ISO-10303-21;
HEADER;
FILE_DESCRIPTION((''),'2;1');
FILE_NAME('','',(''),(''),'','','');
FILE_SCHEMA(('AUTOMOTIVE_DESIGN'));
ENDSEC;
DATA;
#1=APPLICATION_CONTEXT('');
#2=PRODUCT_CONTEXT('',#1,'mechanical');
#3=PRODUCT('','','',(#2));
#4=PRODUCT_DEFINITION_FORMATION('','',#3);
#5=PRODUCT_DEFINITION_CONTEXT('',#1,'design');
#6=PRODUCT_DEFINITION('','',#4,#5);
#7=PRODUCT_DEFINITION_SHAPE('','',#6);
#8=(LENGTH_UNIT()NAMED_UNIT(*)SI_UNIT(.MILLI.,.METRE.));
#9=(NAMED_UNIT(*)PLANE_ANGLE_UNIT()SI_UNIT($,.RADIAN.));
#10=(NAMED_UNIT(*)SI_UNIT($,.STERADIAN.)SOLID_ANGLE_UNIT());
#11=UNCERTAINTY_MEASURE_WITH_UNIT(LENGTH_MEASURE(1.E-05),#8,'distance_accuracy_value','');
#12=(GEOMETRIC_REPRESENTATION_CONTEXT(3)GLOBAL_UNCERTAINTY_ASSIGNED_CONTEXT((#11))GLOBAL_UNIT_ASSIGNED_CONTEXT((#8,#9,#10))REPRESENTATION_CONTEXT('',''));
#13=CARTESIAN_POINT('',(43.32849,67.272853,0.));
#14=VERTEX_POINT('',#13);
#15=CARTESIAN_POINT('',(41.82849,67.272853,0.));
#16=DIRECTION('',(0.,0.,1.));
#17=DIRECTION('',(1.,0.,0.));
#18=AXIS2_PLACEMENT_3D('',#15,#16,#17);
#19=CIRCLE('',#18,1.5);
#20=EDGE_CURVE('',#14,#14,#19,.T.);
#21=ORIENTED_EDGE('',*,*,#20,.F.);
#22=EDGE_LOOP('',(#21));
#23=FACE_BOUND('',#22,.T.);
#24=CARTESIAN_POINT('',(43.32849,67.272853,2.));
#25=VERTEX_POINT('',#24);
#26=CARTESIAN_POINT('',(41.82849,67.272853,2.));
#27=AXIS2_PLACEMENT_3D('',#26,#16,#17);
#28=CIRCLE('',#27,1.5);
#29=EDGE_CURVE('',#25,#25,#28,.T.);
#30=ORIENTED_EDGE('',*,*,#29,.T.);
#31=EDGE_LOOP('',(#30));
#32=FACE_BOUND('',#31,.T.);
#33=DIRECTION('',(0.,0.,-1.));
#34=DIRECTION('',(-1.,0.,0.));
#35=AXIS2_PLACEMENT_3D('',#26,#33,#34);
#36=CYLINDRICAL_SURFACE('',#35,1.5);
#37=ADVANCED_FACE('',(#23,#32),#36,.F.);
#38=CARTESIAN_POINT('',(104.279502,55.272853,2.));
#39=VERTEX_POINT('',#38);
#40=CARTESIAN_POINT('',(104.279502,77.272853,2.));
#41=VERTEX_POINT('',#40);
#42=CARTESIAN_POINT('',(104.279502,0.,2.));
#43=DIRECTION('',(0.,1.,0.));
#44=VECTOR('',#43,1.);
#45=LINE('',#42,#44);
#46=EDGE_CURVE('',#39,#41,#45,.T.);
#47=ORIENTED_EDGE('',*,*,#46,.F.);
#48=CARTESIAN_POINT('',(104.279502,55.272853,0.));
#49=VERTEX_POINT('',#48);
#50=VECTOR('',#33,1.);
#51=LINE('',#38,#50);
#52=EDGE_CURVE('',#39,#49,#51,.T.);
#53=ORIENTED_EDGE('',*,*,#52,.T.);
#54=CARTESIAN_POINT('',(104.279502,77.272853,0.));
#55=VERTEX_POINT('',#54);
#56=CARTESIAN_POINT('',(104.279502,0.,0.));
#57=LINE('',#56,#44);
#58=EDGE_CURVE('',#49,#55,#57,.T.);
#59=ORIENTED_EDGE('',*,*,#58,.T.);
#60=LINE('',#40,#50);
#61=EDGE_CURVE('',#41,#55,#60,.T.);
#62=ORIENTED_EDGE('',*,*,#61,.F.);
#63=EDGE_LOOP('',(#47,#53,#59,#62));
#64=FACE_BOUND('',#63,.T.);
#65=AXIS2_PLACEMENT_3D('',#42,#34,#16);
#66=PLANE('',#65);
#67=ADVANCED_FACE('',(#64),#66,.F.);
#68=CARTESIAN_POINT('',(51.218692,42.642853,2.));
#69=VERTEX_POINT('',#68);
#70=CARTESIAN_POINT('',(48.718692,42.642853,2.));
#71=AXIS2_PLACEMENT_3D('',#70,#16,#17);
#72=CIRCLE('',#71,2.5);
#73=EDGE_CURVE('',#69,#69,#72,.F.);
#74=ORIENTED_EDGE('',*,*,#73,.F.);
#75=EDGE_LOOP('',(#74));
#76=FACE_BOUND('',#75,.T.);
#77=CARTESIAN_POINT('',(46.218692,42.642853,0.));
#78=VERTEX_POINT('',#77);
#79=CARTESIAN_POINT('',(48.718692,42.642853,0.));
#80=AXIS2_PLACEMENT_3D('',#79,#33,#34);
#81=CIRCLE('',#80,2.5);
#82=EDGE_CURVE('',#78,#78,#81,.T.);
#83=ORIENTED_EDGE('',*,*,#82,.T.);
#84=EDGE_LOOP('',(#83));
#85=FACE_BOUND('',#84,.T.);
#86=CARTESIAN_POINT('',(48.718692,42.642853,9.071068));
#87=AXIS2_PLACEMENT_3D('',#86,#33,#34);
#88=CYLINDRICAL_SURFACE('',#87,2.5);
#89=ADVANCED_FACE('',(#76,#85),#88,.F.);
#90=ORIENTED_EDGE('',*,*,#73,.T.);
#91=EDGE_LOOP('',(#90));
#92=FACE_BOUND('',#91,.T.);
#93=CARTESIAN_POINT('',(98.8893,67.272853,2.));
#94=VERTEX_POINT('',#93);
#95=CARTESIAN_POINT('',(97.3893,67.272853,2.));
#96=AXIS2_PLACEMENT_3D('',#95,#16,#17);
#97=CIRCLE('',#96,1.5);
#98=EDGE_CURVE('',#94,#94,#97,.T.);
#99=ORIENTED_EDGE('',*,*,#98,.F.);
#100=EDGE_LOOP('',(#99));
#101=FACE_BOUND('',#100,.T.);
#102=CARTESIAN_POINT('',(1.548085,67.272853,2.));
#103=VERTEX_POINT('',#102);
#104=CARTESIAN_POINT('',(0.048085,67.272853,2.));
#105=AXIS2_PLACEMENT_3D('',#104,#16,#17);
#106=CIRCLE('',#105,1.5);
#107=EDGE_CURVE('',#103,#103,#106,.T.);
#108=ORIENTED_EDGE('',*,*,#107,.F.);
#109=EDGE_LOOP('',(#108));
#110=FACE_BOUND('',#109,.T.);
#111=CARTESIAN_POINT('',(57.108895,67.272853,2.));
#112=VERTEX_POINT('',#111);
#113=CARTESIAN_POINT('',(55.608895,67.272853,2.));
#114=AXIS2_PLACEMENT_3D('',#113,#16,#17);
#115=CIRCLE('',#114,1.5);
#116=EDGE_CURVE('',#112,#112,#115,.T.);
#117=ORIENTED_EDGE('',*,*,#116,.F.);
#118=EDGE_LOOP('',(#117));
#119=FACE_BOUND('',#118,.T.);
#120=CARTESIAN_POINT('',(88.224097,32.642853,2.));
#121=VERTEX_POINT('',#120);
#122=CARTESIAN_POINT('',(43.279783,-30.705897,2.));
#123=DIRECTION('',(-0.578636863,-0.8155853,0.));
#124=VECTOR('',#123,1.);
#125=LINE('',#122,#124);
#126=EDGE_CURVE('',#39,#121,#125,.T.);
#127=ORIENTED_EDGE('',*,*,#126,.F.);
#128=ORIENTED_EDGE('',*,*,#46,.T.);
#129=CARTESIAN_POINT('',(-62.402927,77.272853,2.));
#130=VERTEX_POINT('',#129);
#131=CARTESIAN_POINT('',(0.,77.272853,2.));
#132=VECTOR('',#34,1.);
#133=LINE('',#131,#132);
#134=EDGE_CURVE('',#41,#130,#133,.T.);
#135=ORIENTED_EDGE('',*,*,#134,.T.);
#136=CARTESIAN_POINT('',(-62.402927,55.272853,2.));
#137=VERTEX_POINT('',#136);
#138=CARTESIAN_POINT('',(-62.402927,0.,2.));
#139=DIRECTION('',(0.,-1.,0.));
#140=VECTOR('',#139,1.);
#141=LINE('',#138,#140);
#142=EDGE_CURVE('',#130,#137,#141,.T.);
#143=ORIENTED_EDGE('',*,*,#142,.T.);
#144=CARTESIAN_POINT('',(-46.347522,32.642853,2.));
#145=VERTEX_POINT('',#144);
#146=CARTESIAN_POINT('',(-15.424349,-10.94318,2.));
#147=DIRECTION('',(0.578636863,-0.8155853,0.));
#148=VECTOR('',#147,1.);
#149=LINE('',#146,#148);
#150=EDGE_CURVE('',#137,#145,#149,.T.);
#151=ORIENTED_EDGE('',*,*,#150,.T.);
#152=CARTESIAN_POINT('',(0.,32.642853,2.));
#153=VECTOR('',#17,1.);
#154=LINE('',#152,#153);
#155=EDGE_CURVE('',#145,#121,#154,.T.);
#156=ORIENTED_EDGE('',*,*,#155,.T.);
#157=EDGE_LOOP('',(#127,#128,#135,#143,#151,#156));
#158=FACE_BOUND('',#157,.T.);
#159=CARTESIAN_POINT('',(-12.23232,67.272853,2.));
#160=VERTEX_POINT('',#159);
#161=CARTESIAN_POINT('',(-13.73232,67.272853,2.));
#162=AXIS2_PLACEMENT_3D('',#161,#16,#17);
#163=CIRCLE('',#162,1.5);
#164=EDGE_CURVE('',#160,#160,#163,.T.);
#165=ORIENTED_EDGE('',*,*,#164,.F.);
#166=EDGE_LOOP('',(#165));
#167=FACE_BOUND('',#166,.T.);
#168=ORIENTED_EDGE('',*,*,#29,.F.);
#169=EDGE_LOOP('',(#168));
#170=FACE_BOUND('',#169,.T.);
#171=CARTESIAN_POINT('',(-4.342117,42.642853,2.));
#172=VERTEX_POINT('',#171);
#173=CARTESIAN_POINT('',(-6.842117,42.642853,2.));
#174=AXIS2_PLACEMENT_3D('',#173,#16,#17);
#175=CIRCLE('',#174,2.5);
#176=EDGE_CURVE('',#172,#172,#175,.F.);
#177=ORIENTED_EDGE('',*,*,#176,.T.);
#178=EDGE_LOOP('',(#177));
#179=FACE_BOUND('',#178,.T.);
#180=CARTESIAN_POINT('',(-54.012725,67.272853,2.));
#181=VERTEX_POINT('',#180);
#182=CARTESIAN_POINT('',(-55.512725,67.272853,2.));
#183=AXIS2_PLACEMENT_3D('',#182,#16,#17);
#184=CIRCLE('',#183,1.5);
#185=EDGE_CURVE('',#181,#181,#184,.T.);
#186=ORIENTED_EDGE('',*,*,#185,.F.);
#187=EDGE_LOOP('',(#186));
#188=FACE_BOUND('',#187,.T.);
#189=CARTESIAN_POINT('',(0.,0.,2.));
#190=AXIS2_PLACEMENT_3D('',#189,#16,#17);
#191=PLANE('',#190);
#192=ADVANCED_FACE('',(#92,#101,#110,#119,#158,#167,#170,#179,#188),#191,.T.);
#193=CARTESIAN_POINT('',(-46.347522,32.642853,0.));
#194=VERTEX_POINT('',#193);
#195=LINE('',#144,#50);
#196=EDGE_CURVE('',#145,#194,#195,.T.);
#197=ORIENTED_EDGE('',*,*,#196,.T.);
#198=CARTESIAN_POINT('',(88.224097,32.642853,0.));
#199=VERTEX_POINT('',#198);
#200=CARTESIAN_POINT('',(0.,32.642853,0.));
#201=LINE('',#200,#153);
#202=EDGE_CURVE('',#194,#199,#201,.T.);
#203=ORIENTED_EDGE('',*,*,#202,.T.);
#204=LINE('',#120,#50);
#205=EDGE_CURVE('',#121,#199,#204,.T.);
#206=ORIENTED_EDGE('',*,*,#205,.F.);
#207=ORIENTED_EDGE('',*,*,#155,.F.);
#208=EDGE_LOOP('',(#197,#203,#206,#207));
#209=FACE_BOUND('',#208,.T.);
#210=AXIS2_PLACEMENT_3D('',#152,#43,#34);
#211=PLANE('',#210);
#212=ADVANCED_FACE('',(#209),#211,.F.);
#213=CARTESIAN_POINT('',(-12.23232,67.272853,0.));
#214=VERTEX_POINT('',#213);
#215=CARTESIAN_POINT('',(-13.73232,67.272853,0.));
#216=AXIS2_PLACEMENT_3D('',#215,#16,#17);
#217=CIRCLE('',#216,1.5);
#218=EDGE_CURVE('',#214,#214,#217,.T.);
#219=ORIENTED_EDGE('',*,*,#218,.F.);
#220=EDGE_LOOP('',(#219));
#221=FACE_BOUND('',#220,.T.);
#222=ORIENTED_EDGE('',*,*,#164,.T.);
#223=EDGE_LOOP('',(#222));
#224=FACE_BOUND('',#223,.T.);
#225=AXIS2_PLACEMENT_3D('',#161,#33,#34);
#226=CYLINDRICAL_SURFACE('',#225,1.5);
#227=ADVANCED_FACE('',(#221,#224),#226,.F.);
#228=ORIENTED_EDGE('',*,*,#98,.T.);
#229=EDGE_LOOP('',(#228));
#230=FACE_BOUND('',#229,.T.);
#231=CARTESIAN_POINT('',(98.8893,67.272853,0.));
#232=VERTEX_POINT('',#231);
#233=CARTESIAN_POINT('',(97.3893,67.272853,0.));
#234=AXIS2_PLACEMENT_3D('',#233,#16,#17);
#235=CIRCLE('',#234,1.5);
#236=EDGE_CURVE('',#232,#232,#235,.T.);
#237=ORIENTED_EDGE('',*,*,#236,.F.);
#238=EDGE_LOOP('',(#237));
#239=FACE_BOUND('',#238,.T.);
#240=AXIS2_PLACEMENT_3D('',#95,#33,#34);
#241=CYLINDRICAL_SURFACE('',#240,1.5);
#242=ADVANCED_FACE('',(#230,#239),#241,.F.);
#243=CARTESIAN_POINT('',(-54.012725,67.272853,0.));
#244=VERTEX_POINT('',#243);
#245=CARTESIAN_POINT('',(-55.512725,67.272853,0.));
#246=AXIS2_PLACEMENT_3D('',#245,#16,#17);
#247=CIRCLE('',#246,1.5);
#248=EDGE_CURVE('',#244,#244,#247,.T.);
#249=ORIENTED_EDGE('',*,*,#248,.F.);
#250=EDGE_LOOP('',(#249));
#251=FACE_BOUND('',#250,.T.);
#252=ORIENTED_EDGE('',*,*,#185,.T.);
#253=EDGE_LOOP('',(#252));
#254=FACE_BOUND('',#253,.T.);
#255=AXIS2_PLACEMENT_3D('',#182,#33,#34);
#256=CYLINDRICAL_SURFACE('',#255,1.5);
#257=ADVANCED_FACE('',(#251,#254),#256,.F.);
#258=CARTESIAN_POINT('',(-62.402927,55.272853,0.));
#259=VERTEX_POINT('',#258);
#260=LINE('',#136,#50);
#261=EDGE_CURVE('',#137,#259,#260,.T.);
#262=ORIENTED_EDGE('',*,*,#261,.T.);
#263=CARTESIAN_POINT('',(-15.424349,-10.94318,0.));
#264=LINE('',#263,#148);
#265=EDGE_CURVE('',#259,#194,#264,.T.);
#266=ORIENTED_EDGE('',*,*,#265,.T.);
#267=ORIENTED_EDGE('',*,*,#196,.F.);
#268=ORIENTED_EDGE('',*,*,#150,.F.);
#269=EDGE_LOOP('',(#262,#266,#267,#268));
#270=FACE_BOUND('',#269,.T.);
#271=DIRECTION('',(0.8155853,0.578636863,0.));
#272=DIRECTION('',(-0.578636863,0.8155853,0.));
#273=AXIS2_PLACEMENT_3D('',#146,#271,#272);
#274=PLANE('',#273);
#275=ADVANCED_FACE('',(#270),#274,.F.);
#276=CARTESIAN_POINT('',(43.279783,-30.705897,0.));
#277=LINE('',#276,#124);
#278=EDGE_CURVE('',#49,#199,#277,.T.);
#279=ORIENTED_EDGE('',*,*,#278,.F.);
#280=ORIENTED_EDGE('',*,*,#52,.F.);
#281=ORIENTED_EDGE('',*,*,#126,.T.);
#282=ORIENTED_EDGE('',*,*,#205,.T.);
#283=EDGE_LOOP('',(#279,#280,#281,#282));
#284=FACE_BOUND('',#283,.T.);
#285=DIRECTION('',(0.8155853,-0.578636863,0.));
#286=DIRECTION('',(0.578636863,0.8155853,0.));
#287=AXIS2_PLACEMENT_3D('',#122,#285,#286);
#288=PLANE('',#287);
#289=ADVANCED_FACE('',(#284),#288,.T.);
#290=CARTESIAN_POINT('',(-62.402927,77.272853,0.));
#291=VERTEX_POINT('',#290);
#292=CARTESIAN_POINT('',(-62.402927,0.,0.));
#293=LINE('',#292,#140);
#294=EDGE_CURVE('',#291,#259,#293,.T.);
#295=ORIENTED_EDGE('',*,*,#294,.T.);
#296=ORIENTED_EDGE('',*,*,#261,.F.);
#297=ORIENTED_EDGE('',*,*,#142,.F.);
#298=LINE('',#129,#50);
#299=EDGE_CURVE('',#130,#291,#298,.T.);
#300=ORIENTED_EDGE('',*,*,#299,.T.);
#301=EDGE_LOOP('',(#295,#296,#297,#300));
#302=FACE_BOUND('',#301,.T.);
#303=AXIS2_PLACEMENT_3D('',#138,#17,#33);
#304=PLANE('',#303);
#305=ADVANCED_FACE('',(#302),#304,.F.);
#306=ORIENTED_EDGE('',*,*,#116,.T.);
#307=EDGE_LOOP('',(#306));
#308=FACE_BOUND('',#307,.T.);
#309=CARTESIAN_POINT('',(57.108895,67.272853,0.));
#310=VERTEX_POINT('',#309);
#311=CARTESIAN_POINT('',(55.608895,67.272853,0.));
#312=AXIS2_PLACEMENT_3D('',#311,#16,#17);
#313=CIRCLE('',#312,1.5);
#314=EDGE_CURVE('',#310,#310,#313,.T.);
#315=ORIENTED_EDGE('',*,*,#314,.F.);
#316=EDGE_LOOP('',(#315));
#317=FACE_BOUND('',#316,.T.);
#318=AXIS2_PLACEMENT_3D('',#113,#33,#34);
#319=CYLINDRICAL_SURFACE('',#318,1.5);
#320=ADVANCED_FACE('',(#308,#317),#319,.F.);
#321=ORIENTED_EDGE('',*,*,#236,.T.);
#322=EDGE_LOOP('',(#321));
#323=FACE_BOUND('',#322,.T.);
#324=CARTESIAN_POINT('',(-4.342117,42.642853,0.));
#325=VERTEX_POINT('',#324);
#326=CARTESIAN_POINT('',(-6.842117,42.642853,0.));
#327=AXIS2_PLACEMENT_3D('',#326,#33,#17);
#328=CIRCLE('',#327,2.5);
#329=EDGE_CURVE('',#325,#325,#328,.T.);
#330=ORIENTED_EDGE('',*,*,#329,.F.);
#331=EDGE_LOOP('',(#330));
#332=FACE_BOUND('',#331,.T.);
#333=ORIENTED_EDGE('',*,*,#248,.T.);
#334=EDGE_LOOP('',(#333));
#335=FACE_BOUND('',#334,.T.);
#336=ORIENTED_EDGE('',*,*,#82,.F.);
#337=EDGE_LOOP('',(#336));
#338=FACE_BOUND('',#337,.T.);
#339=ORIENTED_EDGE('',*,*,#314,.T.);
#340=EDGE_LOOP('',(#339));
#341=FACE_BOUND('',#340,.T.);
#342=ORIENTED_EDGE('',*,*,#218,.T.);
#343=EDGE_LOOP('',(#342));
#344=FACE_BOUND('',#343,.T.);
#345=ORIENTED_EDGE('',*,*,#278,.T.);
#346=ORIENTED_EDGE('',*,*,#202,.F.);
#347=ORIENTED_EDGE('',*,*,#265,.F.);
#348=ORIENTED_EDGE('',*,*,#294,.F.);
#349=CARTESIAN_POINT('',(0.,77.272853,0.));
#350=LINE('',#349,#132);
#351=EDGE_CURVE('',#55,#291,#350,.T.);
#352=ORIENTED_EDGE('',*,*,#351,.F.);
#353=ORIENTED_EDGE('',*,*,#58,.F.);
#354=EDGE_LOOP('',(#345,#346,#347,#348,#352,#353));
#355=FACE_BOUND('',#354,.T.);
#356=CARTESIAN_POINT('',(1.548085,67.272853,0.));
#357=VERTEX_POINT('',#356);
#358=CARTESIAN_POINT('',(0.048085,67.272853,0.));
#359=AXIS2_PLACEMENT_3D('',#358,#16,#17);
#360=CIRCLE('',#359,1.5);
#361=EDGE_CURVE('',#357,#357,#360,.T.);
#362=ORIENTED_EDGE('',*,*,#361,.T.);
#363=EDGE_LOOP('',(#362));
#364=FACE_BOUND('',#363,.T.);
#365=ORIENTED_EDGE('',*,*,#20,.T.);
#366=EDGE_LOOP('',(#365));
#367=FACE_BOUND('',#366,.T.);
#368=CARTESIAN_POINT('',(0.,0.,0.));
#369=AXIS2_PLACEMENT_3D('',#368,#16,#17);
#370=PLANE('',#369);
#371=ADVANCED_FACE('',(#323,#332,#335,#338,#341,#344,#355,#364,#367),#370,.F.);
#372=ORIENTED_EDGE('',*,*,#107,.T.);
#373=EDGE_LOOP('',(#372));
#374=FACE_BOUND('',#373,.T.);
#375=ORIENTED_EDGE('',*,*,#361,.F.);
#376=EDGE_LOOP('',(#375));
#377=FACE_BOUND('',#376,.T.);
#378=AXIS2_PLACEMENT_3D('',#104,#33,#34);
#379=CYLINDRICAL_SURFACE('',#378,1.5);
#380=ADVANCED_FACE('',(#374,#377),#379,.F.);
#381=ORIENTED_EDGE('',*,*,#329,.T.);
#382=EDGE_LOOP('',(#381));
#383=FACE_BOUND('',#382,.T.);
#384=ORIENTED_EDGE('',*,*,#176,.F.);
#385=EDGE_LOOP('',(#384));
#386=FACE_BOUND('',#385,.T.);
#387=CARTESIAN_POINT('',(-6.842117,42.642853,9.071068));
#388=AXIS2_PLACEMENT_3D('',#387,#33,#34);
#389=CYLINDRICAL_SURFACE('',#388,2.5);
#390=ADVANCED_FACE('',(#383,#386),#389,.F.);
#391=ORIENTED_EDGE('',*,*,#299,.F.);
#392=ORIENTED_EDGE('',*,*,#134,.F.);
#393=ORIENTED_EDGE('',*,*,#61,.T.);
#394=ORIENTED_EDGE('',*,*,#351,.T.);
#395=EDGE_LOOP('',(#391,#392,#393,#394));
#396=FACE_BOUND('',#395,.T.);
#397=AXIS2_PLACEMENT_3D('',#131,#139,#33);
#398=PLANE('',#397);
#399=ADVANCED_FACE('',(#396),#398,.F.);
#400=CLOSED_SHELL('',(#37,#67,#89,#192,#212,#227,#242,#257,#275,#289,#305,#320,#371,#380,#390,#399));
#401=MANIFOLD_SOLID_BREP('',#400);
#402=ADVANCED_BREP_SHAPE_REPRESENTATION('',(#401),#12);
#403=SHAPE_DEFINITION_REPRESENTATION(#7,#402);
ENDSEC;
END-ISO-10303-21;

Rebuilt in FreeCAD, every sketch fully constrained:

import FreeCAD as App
import Part
import Sketcher
Q = App.Units.Quantity


def add_polygon(sketch, points):
    """Adds a closed chain of lines whose ends are joined by coincident constraints."""
    first, n = sketch.GeometryCount, len(points)
    for a, b in zip(points, points[1:] + points[:1]):
        sketch.addGeometry(Part.LineSegment(App.Vector(*a, 0), App.Vector(*b, 0)), False)
    for i in range(n):
        sketch.addConstraint(Sketcher.Constraint("Coincident", first + i, 2, first + (i + 1) % n, 1))

doc = App.newDocument("Part")
params = doc.addObject("Spreadsheet::Sheet", "Params")
for row, (alias, value) in enumerate([
    ("sketch1_diameter", "3 mm"),
    ("sketch1_height", "22 mm"),
    ("pad1_length", "2 mm"),
    ("sketch2_diameter", "5 mm"),
    ("pocket1_length", "2 mm"),
], start=1):
    params.set(f"A{row}", alias)
    params.set(f"B{row}", "=" + value)
    params.setAlias(f"B{row}", alias)

body = doc.addObject("PartDesign::Body", "Body")

sketch1 = body.newObject("Sketcher::SketchObject", "Sketch")
sketch1.AttachmentSupport = (doc.getObject("XY_Plane"), [""])
sketch1.MapMode = "FlatFace"
add_polygon(sketch1, [(-62.402927, 55.272853), (-46.347522, 32.642853), (88.224097, 32.642853), (104.279502, 55.272853), (104.279502, 77.272853), (-62.402927, 77.272853)])
sketch1.addGeometry(Part.Circle(App.Vector(97.3893, 67.272853, 0), App.Vector(0, 0, 1), 1.5), False)
sketch1.addGeometry(Part.Circle(App.Vector(55.608895, 67.272853, 0), App.Vector(0, 0, 1), 1.5), False)
sketch1.addGeometry(Part.Circle(App.Vector(41.82849, 67.272853, 0), App.Vector(0, 0, 1), 1.5), False)
sketch1.addGeometry(Part.Circle(App.Vector(0.048085, 67.272853, 0), App.Vector(0, 0, 1), 1.5), False)
sketch1.addGeometry(Part.Circle(App.Vector(-13.73232, 67.272853, 0), App.Vector(0, 0, 1), 1.5), False)
sketch1.addGeometry(Part.Circle(App.Vector(-55.512725, 67.272853, 0), App.Vector(0, 0, 1), 1.5), False)
sketch1.addConstraint([
    Sketcher.Constraint("Horizontal", 1),
    Sketcher.Constraint("Vertical", 3),
    Sketcher.Constraint("Horizontal", 4),
    Sketcher.Constraint("Vertical", 5),
    Sketcher.Constraint("Equal", 6, 7),
    Sketcher.Constraint("Equal", 7, 8),
    Sketcher.Constraint("Equal", 8, 9),
    Sketcher.Constraint("Equal", 9, 10),
    Sketcher.Constraint("Equal", 10, 11),
    Sketcher.Constraint("Horizontal", 6, 3, 7, 3),
    Sketcher.Constraint("Horizontal", 7, 3, 8, 3),
    Sketcher.Constraint("Horizontal", 8, 3, 9, 3),
    Sketcher.Constraint("Horizontal", 9, 3, 10, 3),
    Sketcher.Constraint("Horizontal", 10, 3, 11, 3),
    Sketcher.Constraint("Horizontal", 2, 2, 5, 2),
    Sketcher.Constraint("Equal", 0, 2),
    Sketcher.Constraint("Diameter", 6, Q("3 mm")),
    Sketcher.Constraint("DistanceY", 3, 1, 3, 2, Q("22 mm")),
    Sketcher.Constraint("DistanceY", 2, 2, 6, 3, Q("12 mm")),
    Sketcher.Constraint("DistanceY", 0, 2, 11, 3, Q("34.63 mm")),
    Sketcher.Constraint("DistanceX", 1, 1, 1, 2, Q("134.571619 mm")),
    Sketcher.Constraint("DistanceX", 4, 2, 4, 1, Q("166.682429 mm")),
    Sketcher.Constraint("DistanceX", -1, 1, 6, 3, Q("97.3893 mm")),
    Sketcher.Constraint("DistanceX", -1, 1, 8, 3, Q("41.82849 mm")),
    Sketcher.Constraint("DistanceX", 10, 3, -1, 1, Q("13.73232 mm")),
    Sketcher.Constraint("DistanceX", 9, 3, 7, 3, Q("55.56081 mm")),
    Sketcher.Constraint("DistanceX", 11, 3, 9, 3, Q("55.56081 mm")),
    Sketcher.Constraint("DistanceY", -1, 1, 6, 3, Q("67.272853 mm")),
    Sketcher.Constraint("DistanceX", -1, 1, 7, 3, Q("55.608895 mm")),
    Sketcher.Constraint("DistanceX", 0, 2, -1, 1, Q("46.347522 mm")),
])
sketch1.setExpression("Constraints[22]", "Params.sketch1_diameter")
sketch1.setExpression("Constraints[23]", "Params.sketch1_height")
pad1 = body.newObject("PartDesign::Pad", "Pad")
pad1.Profile = sketch1
pad1.setExpression("Length", "Params.pad1_length")

sketch2 = body.newObject("Sketcher::SketchObject", "Sketch001")
sketch2.AttachmentSupport = (doc.getObject("XY_Plane"), [""])
sketch2.MapMode = "FlatFace"
sketch2.addGeometry([
    Part.Circle(App.Vector(48.718692, 42.642853, 0), App.Vector(0, 0, 1), 2.5),
    Part.Circle(App.Vector(-6.842117, 42.642853, 0), App.Vector(0, 0, 1), 2.5),
], False)
sketch2.addConstraint([
    Sketcher.Constraint("Equal", 0, 1),
    Sketcher.Constraint("Horizontal", 0, 3, 1, 3),
    Sketcher.Constraint("Diameter", 0, Q("5 mm")),
    Sketcher.Constraint("DistanceX", 1, 3, 0, 3, Q("55.56081 mm")),
    Sketcher.Constraint("DistanceX", -1, 1, 0, 3, Q("48.718692 mm")),
    Sketcher.Constraint("DistanceY", -1, 1, 0, 3, Q("42.642853 mm")),
])
sketch2.setExpression("Constraints[2]", "Params.sketch2_diameter")
pocket1 = body.newObject("PartDesign::Pocket", "Pocket")
pocket1.Profile = sketch2
pocket1.setExpression("Length", "Params.pocket1_length")
pocket1.Reversed = True

doc.recompute()
